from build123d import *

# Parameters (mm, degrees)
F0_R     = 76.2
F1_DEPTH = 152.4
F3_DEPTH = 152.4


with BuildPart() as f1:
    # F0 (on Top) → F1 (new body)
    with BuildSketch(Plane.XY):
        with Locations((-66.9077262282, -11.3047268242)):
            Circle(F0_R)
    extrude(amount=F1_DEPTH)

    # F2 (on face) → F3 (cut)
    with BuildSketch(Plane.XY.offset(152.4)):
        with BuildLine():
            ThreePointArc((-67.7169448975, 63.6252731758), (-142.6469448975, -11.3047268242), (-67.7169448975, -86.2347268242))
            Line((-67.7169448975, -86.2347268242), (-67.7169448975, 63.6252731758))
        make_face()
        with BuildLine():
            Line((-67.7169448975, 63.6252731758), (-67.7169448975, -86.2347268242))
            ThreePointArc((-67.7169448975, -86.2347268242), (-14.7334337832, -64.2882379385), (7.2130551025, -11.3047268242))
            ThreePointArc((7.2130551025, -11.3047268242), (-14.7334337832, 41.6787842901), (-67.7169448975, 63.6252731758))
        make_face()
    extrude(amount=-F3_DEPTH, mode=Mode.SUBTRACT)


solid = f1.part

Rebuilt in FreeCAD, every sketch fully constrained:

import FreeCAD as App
import Part
import Sketcher
Q = App.Units.Quantity

doc = App.newDocument("Part")
body = doc.addObject("PartDesign::Body", "Body")

# Sketch on XY plane
sketch1 = body.newObject("Sketcher::SketchObject", "Sketch")
sketch1.AttachmentSupport = (doc.getObject("XY_Plane"), [""])
sketch1.MapMode = "FlatFace"
sketch1.addGeometry(Part.Circle(App.Vector(-67, -11, 0), App.Vector(0, 0, 1), 76), False)
sketch1.addConstraint([
    Sketcher.Constraint("Diameter", 0, Q("6 in")),
    Sketcher.Constraint("DistanceX", 0, 3, -1, 1, Q("66.907726 mm")),
    Sketcher.Constraint("DistanceY", 0, 3, -1, 1, Q("11.304727 mm")),
])
pad1 = body.newObject("PartDesign::Pad", "Pad")
pad1.Profile = sketch1
pad1.Length = Q("6 in")

# Sketch on XY plane
sketch2 = body.newObject("Sketcher::SketchObject", "Sketch001")
sketch2.AttachmentSupport = (doc.getObject("XY_Plane"), [""])
sketch2.MapMode = "FlatFace"
sketch2.AttachmentOffset = App.Placement(App.Vector(0, 0, 6 * 25.4), App.Rotation())
sketch2.addGeometry(Part.Circle(App.Vector(-68, -11, 0), App.Vector(0, 0, 1), 75), False)
sketch2.addConstraint([
    Sketcher.Constraint("Diameter", 0, Q("5.9 in")),
    Sketcher.Constraint("DistanceX", 0, 3, -1, 1, Q("67.716945 mm")),
    Sketcher.Constraint("DistanceY", 0, 3, -1, 1, Q("11.304727 mm")),
])
pocket1 = body.newObject("PartDesign::Pocket", "Pocket")
pocket1.Profile = sketch2
pocket1.Length = Q("6 in")

doc.recompute()
